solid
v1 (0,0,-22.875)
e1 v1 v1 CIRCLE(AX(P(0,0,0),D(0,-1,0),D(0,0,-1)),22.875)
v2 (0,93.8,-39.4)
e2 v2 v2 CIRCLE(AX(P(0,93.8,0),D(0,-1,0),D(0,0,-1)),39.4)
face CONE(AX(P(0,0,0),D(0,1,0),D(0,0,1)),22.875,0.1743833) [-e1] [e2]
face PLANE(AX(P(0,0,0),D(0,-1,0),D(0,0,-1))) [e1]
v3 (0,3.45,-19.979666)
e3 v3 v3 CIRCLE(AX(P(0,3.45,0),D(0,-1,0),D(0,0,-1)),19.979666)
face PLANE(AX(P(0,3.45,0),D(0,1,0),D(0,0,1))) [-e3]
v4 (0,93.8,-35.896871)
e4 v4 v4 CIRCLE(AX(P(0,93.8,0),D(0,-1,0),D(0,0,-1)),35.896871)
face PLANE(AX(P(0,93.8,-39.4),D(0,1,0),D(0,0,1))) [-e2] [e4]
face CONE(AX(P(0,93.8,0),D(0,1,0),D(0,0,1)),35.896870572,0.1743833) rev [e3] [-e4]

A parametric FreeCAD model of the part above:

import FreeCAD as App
import Part
import Sketcher

V = App.Vector

doc = App.newDocument("Part")
body = doc.addObject("PartDesign::Body", "Body")

# Sketch on YZ plane
sketch1 = body.newObject("Sketcher::SketchObject", "Sketch")
sketch1.AttachmentSupport = (doc.getObject("YZ_Plane"), [""])
sketch1.MapMode = "FlatFace"
sketch1.addGeometry([
    Part.LineSegment(V(0, 0, 0), V(0, -22.9, 0)),  # 0
    Part.LineSegment(V(0, -22.9, 0), V(93.8, -39.4, 0)),  # 1
    Part.LineSegment(V(93.8, -39.4, 0), V(93.8, -35.9, 0)),  # 2
    Part.LineSegment(V(93.8, -35.9, 0), V(3.5, -20, 0)),  # 3
    Part.LineSegment(V(3.5, -20, 0), V(3.5, 0, 0)),  # 4
    Part.LineSegment(V(3.5, 0, 0), V(0, 0, 0)),  # 5
], False)
sketch1.addConstraint([
    Sketcher.Constraint("Coincident", 0, 2, 1, 1),
    Sketcher.Constraint("Coincident", 1, 2, 2, 1),
    Sketcher.Constraint("Coincident", 2, 2, 3, 1),
    Sketcher.Constraint("Coincident", 3, 2, 4, 1),
    Sketcher.Constraint("Coincident", 4, 2, 5, 1),
    Sketcher.Constraint("Coincident", 5, 2, 0, 1),
    Sketcher.Constraint("Vertical", 0),
    Sketcher.Constraint("Vertical", 2),
    Sketcher.Constraint("Vertical", 4),
    Sketcher.Constraint("Horizontal", 5),
    Sketcher.Constraint("Coincident", 5, 2, -1, 1),
    Sketcher.Constraint("Parallel", 1, 3),
    Sketcher.Constraint("DistanceX", 5, 2, 5, 1, 3.45),
    Sketcher.Constraint("DistanceX", -1, 1, 1, 2, 93.8),
    Sketcher.Constraint("DistanceY", 1, 2, -1, 1, 39.4),
    Sketcher.Constraint("DistanceY", 0, 2, 0, 1, 22.875),
    Sketcher.Constraint("DistanceY", 2, 1, 2, 2, 3.503129),
])
revolution = body.newObject("PartDesign::Revolution", "Revolution")
revolution.Profile = sketch1
revolution.ReferenceAxis = (sketch1, ["H_Axis"])
revolution.Angle = 360

doc.recompute()
